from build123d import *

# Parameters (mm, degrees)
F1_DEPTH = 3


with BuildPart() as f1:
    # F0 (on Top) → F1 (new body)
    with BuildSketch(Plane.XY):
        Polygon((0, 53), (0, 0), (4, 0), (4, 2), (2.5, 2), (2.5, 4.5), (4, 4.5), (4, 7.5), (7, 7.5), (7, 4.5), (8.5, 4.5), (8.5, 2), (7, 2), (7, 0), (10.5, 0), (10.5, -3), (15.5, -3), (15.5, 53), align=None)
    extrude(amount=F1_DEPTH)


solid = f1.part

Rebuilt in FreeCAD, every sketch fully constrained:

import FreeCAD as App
import Part
import Sketcher
from FreeCAD import Vector
Q = App.Units.Quantity

doc = App.newDocument("Part")
body = doc.addObject("PartDesign::Body", "Body")

# Sketch on XY plane
sketch1 = body.newObject("Sketcher::SketchObject", "Sketch")
sketch1.AttachmentSupport = (doc.getObject("XY_Plane"), [""])
sketch1.MapMode = "FlatFace"
sketch1.addGeometry([
    Part.LineSegment(Vector(0, 53, 0), Vector(0, 0, 0)),  # 0
    Part.LineSegment(Vector(0, 0, 0), Vector(4, 0, 0)),  # 1
    Part.LineSegment(Vector(4, 0, 0), Vector(4, 2, 0)),  # 2
    Part.LineSegment(Vector(4, 2, 0), Vector(2.5, 2, 0)),  # 3
    Part.LineSegment(Vector(2.5, 2, 0), Vector(2.5, 4.5, 0)),  # 4
    Part.LineSegment(Vector(2.5, 4.5, 0), Vector(4, 4.5, 0)),  # 5
    Part.LineSegment(Vector(4, 4.5, 0), Vector(4, 7.5, 0)),  # 6
    Part.LineSegment(Vector(4, 7.5, 0), Vector(7, 7.5, 0)),  # 7
    Part.LineSegment(Vector(7, 7.5, 0), Vector(7, 4.5, 0)),  # 8
    Part.LineSegment(Vector(7, 4.5, 0), Vector(8.5, 4.5, 0)),  # 9
    Part.LineSegment(Vector(8.5, 4.5, 0), Vector(8.5, 2, 0)),  # 10
    Part.LineSegment(Vector(8.5, 2, 0), Vector(7, 2, 0)),  # 11
    Part.LineSegment(Vector(7, 2, 0), Vector(7, 0, 0)),  # 12
    Part.LineSegment(Vector(7, 0, 0), Vector(10.5, 0, 0)),  # 13
    Part.LineSegment(Vector(10.5, 0, 0), Vector(10.5, -3, 0)),  # 14
    Part.LineSegment(Vector(10.5, -3, 0), Vector(15.5, -3, 0)),  # 15
    Part.LineSegment(Vector(15.5, -3, 0), Vector(15.5, 53, 0)),  # 16
    Part.LineSegment(Vector(15.5, 53, 0), Vector(0, 53, 0)),  # 17
], False)
sketch1.addConstraint([
    Sketcher.Constraint("Coincident", 0, 2, 1, 1),
    Sketcher.Constraint("Coincident", 1, 2, 2, 1),
    Sketcher.Constraint("Coincident", 2, 2, 3, 1),
    Sketcher.Constraint("Coincident", 3, 2, 4, 1),
    Sketcher.Constraint("Coincident", 4, 2, 5, 1),
    Sketcher.Constraint("Coincident", 5, 2, 6, 1),
    Sketcher.Constraint("Coincident", 6, 2, 7, 1),
    Sketcher.Constraint("Coincident", 7, 2, 8, 1),
    Sketcher.Constraint("Coincident", 8, 2, 9, 1),
    Sketcher.Constraint("Coincident", 9, 2, 10, 1),
    Sketcher.Constraint("Coincident", 10, 2, 11, 1),
    Sketcher.Constraint("Coincident", 11, 2, 12, 1),
    Sketcher.Constraint("Coincident", 12, 2, 13, 1),
    Sketcher.Constraint("Coincident", 13, 2, 14, 1),
    Sketcher.Constraint("Coincident", 14, 2, 15, 1),
    Sketcher.Constraint("Coincident", 15, 2, 16, 1),
    Sketcher.Constraint("Coincident", 16, 2, 17, 1),
    Sketcher.Constraint("Coincident", 17, 2, 0, 1),
    Sketcher.Constraint("Vertical", 0),
    Sketcher.Constraint("Horizontal", 1),
    Sketcher.Constraint("Vertical", 2),
    Sketcher.Constraint("Horizontal", 3),
    Sketcher.Constraint("Vertical", 4),
    Sketcher.Constraint("Horizontal", 5),
    Sketcher.Constraint("Vertical", 6),
    Sketcher.Constraint("Horizontal", 7),
    Sketcher.Constraint("Vertical", 8),
    Sketcher.Constraint("Horizontal", 9),
    Sketcher.Constraint("Vertical", 10),
    Sketcher.Constraint("Horizontal", 11),
    Sketcher.Constraint("Vertical", 12),
    Sketcher.Constraint("Horizontal", 13),
    Sketcher.Constraint("Vertical", 14),
    Sketcher.Constraint("Horizontal", 15),
    Sketcher.Constraint("Vertical", 16),
    Sketcher.Constraint("Horizontal", 17),
    Sketcher.Constraint("Coincident", 0, 2, -1, 1),
    Sketcher.Constraint("PointOnObject", 12, 2, -1),
    Sketcher.Constraint("Horizontal", 5, 2, 8, 2),
    Sketcher.Constraint("Horizontal", 3, 2, 10, 2),
    Sketcher.Constraint("Vertical", 2, 2, 5, 2),
    Sketcher.Constraint("Vertical", 8, 2, 11, 2),
    Sketcher.Constraint("Equal", 5, 9),
    Sketcher.Constraint("Equal", 7, 6),
    Sketcher.Constraint("Equal", 8, 14),
    Sketcher.Constraint("DistanceX", 1, 1, 1, 2, Q("4 mm")),
    Sketcher.Constraint("DistanceX", 7, 1, 7, 2, Q("3 mm")),
    Sketcher.Constraint("DistanceX", 15, 1, 15, 2, Q("5 mm")),
    Sketcher.Constraint("DistanceY", 0, 2, 0, 1, Q("53 mm")),
    Sketcher.Constraint("DistanceY", 2, 1, 2, 2, Q("2 mm")),
    Sketcher.Constraint("DistanceX", 3, 2, 3, 1, Q("1.5 mm")),
    Sketcher.Constraint("DistanceX", 13, 1, 13, 2, Q("3.5 mm")),
    Sketcher.Constraint("DistanceY", 4, 1, 4, 2, Q("2.5 mm")),
])
pad1 = body.newObject("PartDesign::Pad", "Pad")
pad1.Profile = sketch1
pad1.Length = 3

doc.recompute()
